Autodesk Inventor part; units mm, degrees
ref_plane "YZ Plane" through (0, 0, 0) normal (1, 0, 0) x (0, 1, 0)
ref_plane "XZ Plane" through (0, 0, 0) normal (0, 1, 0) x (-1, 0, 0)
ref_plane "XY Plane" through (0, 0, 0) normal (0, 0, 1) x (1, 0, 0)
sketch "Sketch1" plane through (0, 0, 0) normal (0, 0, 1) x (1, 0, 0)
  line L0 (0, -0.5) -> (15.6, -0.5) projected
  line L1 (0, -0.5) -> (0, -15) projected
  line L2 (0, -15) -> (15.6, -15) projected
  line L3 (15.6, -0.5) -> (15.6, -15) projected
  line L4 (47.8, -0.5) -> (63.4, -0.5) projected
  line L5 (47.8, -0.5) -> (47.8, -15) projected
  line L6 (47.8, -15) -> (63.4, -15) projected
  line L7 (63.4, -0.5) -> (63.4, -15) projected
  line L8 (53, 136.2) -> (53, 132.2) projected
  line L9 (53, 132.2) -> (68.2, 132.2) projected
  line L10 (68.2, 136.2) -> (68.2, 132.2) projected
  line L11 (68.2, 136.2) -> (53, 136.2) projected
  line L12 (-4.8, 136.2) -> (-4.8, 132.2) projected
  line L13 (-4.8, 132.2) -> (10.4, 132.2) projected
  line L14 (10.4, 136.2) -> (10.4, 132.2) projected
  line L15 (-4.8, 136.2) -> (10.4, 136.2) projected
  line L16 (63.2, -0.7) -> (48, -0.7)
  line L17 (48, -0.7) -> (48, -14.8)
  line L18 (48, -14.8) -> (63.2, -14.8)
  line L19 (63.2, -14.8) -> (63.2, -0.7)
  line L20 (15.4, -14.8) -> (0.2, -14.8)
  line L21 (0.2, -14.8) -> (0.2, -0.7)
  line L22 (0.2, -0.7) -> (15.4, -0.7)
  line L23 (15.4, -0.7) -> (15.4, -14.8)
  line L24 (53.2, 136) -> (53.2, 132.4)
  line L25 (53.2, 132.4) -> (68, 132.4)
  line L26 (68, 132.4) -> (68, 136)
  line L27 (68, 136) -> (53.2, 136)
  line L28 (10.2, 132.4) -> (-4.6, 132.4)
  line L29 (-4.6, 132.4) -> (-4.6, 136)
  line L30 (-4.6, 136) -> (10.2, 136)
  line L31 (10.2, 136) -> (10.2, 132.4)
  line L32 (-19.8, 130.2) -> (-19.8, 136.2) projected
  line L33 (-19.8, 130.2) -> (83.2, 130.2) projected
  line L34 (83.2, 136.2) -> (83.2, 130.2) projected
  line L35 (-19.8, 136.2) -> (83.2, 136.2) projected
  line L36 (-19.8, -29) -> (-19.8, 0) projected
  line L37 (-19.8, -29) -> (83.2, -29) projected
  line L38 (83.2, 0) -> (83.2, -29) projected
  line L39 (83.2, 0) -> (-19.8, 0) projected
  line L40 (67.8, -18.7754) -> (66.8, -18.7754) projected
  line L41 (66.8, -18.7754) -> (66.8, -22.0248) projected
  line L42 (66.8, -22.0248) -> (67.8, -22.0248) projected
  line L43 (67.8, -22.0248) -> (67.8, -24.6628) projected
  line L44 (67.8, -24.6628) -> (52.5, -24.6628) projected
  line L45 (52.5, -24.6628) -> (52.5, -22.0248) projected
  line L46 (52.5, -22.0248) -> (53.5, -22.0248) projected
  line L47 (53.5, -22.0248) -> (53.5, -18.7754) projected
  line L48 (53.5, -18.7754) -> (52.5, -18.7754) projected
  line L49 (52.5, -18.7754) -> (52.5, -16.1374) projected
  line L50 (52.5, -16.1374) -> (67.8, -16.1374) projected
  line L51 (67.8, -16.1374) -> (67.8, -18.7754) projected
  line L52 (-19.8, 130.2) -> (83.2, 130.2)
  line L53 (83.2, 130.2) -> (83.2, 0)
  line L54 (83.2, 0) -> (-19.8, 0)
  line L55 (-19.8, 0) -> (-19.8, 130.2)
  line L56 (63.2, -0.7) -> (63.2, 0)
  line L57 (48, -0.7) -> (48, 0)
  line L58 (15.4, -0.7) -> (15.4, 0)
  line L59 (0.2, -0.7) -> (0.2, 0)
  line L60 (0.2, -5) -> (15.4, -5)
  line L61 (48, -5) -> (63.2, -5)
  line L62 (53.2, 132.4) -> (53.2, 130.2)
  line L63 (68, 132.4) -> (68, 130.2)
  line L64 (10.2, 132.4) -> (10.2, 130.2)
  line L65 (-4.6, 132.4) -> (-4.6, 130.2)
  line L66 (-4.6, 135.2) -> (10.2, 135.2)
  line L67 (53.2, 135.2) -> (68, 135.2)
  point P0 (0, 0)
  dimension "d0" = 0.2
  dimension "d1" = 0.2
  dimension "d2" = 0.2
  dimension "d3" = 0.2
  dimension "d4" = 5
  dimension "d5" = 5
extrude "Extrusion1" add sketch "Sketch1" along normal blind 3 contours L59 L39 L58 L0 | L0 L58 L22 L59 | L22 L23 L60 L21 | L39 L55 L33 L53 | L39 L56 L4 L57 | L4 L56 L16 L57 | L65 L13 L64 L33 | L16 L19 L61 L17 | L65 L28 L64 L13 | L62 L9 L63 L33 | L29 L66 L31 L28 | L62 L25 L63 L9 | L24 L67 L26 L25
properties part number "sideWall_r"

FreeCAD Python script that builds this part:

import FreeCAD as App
import Part
import Sketcher

V = App.Vector
Q = App.Units.Quantity

doc = App.newDocument("Part")
params = doc.addObject("Spreadsheet::Sheet", "Params")
for row, (alias, value) in enumerate([
    ("sketch1_height", "5 mm"),
    ("sketch1_width", "20 mm"),
    ("sketch1_width2", "43 mm"),
    ("sketch1_width3", "15.2 mm"),
    ("sketch1_width4", "32.6 mm"),
    ("pad1_length", "3 mm"),
], start=1):
    params.set(f"A{row}", alias)
    params.set(f"B{row}", "=" + value)
    params.setAlias(f"B{row}", alias)

body = doc.addObject("PartDesign::Body", "Body")

sketch1 = body.newObject("Sketcher::SketchObject", "Sketch")
sketch1.AttachmentSupport = (doc.getObject("XY_Plane"), [""])
sketch1.MapMode = "FlatFace"
sketch1.addGeometry([
    Part.LineSegment(V(0, 0, 0), V(0, -5, 0)),
    Part.LineSegment(V(0, -5, 0), V(15, -5, 0)),
    Part.LineSegment(V(15, -5, 0), V(15, 0, 0)),
    Part.LineSegment(V(15, 0, 0), V(48, 0, 0)),
    Part.LineSegment(V(48, 0, 0), V(48, -5, 0)),
    Part.LineSegment(V(48, -5, 0), V(63, -5, 0)),
    Part.LineSegment(V(63, -5, 0), V(63, 0, 0)),
    Part.LineSegment(V(63, 0, 0), V(83, 0, 0)),
    Part.LineSegment(V(83, 0, 0), V(83, 130, 0)),
    Part.LineSegment(V(83, 130, 0), V(68, 130, 0)),
    Part.LineSegment(V(68, 130, 0), V(68, 135, 0)),
    Part.LineSegment(V(68, 135, 0), V(53, 135, 0)),
    Part.LineSegment(V(53, 135, 0), V(53, 130, 0)),
    Part.LineSegment(V(53, 130, 0), V(10, 130, 0)),
    Part.LineSegment(V(10, 130, 0), V(10, 135, 0)),
    Part.LineSegment(V(10, 135, 0), V(-5, 135, 0)),
    Part.LineSegment(V(-5, 135, 0), V(-5, 130, 0)),
    Part.LineSegment(V(-5, 130, 0), V(-20, 130, 0)),
    Part.LineSegment(V(-20, 130, 0), V(-20, 0, 0)),
    Part.LineSegment(V(-20, 0, 0), V(0, 0, 0)),
], False)
sketch1.addConstraint([
    Sketcher.Constraint("Coincident", 0, 2, 1, 1),
    Sketcher.Constraint("Coincident", 1, 2, 2, 1),
    Sketcher.Constraint("Coincident", 2, 2, 3, 1),
    Sketcher.Constraint("Coincident", 3, 2, 4, 1),
    Sketcher.Constraint("Coincident", 4, 2, 5, 1),
    Sketcher.Constraint("Coincident", 5, 2, 6, 1),
    Sketcher.Constraint("Coincident", 6, 2, 7, 1),
    Sketcher.Constraint("Coincident", 7, 2, 8, 1),
    Sketcher.Constraint("Coincident", 8, 2, 9, 1),
    Sketcher.Constraint("Coincident", 9, 2, 10, 1),
    Sketcher.Constraint("Coincident", 10, 2, 11, 1),
    Sketcher.Constraint("Coincident", 11, 2, 12, 1),
    Sketcher.Constraint("Coincident", 12, 2, 13, 1),
    Sketcher.Constraint("Coincident", 13, 2, 14, 1),
    Sketcher.Constraint("Coincident", 14, 2, 15, 1),
    Sketcher.Constraint("Coincident", 15, 2, 16, 1),
    Sketcher.Constraint("Coincident", 16, 2, 17, 1),
    Sketcher.Constraint("Coincident", 17, 2, 18, 1),
    Sketcher.Constraint("Coincident", 18, 2, 19, 1),
    Sketcher.Constraint("Coincident", 19, 2, 0, 1),
    Sketcher.Constraint("Vertical", 0),
    Sketcher.Constraint("Horizontal", 1),
    Sketcher.Constraint("Vertical", 2),
    Sketcher.Constraint("Horizontal", 3),
    Sketcher.Constraint("Vertical", 4),
    Sketcher.Constraint("Horizontal", 5),
    Sketcher.Constraint("Vertical", 6),
    Sketcher.Constraint("Horizontal", 7),
    Sketcher.Constraint("Vertical", 8),
    Sketcher.Constraint("Horizontal", 9),
    Sketcher.Constraint("Vertical", 10),
    Sketcher.Constraint("Horizontal", 11),
    Sketcher.Constraint("Vertical", 12),
    Sketcher.Constraint("Horizontal", 13),
    Sketcher.Constraint("Vertical", 14),
    Sketcher.Constraint("Horizontal", 15),
    Sketcher.Constraint("Vertical", 16),
    Sketcher.Constraint("Horizontal", 17),
    Sketcher.Constraint("Vertical", 18),
    Sketcher.Constraint("Horizontal", 19),
    Sketcher.Constraint("PointOnObject", 2, 2, -1),
    Sketcher.Constraint("PointOnObject", 6, 2, -1),
    Sketcher.Constraint("PointOnObject", 18, 2, -1),
    Sketcher.Constraint("Horizontal", 1, 2, 4, 2),
    Sketcher.Constraint("Horizontal", 9, 2, 12, 2),
    Sketcher.Constraint("Horizontal", 11, 2, 14, 2),
    Sketcher.Constraint("Horizontal", 13, 2, 16, 2),
    Sketcher.Constraint("Equal", 1, 5),
    Sketcher.Constraint("Equal", 5, 9),
    Sketcher.Constraint("Equal", 11, 15),
    Sketcher.Constraint("Equal", 9, 17),
    Sketcher.Constraint("Equal", 7, 19),
    Sketcher.Constraint("Equal", 6, 10),
    Sketcher.Constraint("DistanceY", 0, 2, 0, 1, Q("5 mm")),
    Sketcher.Constraint("DistanceX", -1, 1, 0, 2, Q("0.2 mm")),
    Sketcher.Constraint("DistanceX", 7, 1, 7, 2, Q("20 mm")),
    Sketcher.Constraint("DistanceX", 13, 2, 13, 1, Q("43 mm")),
    Sketcher.Constraint("DistanceX", 1, 1, 1, 2, Q("15.2 mm")),
    Sketcher.Constraint("DistanceX", 3, 1, 3, 2, Q("32.6 mm")),
    Sketcher.Constraint("DistanceY", 8, 1, 8, 2, Q("130.2 mm")),
])
sketch1.setExpression("Constraints[53]", "Params.sketch1_height")
sketch1.setExpression("Constraints[55]", "Params.sketch1_width")
sketch1.setExpression("Constraints[56]", "Params.sketch1_width2")
sketch1.setExpression("Constraints[57]", "Params.sketch1_width3")
sketch1.setExpression("Constraints[58]", "Params.sketch1_width4")
pad1 = body.newObject("PartDesign::Pad", "Pad")
pad1.Profile = sketch1
pad1.setExpression("Length", "Params.pad1_length")

doc.recompute()
